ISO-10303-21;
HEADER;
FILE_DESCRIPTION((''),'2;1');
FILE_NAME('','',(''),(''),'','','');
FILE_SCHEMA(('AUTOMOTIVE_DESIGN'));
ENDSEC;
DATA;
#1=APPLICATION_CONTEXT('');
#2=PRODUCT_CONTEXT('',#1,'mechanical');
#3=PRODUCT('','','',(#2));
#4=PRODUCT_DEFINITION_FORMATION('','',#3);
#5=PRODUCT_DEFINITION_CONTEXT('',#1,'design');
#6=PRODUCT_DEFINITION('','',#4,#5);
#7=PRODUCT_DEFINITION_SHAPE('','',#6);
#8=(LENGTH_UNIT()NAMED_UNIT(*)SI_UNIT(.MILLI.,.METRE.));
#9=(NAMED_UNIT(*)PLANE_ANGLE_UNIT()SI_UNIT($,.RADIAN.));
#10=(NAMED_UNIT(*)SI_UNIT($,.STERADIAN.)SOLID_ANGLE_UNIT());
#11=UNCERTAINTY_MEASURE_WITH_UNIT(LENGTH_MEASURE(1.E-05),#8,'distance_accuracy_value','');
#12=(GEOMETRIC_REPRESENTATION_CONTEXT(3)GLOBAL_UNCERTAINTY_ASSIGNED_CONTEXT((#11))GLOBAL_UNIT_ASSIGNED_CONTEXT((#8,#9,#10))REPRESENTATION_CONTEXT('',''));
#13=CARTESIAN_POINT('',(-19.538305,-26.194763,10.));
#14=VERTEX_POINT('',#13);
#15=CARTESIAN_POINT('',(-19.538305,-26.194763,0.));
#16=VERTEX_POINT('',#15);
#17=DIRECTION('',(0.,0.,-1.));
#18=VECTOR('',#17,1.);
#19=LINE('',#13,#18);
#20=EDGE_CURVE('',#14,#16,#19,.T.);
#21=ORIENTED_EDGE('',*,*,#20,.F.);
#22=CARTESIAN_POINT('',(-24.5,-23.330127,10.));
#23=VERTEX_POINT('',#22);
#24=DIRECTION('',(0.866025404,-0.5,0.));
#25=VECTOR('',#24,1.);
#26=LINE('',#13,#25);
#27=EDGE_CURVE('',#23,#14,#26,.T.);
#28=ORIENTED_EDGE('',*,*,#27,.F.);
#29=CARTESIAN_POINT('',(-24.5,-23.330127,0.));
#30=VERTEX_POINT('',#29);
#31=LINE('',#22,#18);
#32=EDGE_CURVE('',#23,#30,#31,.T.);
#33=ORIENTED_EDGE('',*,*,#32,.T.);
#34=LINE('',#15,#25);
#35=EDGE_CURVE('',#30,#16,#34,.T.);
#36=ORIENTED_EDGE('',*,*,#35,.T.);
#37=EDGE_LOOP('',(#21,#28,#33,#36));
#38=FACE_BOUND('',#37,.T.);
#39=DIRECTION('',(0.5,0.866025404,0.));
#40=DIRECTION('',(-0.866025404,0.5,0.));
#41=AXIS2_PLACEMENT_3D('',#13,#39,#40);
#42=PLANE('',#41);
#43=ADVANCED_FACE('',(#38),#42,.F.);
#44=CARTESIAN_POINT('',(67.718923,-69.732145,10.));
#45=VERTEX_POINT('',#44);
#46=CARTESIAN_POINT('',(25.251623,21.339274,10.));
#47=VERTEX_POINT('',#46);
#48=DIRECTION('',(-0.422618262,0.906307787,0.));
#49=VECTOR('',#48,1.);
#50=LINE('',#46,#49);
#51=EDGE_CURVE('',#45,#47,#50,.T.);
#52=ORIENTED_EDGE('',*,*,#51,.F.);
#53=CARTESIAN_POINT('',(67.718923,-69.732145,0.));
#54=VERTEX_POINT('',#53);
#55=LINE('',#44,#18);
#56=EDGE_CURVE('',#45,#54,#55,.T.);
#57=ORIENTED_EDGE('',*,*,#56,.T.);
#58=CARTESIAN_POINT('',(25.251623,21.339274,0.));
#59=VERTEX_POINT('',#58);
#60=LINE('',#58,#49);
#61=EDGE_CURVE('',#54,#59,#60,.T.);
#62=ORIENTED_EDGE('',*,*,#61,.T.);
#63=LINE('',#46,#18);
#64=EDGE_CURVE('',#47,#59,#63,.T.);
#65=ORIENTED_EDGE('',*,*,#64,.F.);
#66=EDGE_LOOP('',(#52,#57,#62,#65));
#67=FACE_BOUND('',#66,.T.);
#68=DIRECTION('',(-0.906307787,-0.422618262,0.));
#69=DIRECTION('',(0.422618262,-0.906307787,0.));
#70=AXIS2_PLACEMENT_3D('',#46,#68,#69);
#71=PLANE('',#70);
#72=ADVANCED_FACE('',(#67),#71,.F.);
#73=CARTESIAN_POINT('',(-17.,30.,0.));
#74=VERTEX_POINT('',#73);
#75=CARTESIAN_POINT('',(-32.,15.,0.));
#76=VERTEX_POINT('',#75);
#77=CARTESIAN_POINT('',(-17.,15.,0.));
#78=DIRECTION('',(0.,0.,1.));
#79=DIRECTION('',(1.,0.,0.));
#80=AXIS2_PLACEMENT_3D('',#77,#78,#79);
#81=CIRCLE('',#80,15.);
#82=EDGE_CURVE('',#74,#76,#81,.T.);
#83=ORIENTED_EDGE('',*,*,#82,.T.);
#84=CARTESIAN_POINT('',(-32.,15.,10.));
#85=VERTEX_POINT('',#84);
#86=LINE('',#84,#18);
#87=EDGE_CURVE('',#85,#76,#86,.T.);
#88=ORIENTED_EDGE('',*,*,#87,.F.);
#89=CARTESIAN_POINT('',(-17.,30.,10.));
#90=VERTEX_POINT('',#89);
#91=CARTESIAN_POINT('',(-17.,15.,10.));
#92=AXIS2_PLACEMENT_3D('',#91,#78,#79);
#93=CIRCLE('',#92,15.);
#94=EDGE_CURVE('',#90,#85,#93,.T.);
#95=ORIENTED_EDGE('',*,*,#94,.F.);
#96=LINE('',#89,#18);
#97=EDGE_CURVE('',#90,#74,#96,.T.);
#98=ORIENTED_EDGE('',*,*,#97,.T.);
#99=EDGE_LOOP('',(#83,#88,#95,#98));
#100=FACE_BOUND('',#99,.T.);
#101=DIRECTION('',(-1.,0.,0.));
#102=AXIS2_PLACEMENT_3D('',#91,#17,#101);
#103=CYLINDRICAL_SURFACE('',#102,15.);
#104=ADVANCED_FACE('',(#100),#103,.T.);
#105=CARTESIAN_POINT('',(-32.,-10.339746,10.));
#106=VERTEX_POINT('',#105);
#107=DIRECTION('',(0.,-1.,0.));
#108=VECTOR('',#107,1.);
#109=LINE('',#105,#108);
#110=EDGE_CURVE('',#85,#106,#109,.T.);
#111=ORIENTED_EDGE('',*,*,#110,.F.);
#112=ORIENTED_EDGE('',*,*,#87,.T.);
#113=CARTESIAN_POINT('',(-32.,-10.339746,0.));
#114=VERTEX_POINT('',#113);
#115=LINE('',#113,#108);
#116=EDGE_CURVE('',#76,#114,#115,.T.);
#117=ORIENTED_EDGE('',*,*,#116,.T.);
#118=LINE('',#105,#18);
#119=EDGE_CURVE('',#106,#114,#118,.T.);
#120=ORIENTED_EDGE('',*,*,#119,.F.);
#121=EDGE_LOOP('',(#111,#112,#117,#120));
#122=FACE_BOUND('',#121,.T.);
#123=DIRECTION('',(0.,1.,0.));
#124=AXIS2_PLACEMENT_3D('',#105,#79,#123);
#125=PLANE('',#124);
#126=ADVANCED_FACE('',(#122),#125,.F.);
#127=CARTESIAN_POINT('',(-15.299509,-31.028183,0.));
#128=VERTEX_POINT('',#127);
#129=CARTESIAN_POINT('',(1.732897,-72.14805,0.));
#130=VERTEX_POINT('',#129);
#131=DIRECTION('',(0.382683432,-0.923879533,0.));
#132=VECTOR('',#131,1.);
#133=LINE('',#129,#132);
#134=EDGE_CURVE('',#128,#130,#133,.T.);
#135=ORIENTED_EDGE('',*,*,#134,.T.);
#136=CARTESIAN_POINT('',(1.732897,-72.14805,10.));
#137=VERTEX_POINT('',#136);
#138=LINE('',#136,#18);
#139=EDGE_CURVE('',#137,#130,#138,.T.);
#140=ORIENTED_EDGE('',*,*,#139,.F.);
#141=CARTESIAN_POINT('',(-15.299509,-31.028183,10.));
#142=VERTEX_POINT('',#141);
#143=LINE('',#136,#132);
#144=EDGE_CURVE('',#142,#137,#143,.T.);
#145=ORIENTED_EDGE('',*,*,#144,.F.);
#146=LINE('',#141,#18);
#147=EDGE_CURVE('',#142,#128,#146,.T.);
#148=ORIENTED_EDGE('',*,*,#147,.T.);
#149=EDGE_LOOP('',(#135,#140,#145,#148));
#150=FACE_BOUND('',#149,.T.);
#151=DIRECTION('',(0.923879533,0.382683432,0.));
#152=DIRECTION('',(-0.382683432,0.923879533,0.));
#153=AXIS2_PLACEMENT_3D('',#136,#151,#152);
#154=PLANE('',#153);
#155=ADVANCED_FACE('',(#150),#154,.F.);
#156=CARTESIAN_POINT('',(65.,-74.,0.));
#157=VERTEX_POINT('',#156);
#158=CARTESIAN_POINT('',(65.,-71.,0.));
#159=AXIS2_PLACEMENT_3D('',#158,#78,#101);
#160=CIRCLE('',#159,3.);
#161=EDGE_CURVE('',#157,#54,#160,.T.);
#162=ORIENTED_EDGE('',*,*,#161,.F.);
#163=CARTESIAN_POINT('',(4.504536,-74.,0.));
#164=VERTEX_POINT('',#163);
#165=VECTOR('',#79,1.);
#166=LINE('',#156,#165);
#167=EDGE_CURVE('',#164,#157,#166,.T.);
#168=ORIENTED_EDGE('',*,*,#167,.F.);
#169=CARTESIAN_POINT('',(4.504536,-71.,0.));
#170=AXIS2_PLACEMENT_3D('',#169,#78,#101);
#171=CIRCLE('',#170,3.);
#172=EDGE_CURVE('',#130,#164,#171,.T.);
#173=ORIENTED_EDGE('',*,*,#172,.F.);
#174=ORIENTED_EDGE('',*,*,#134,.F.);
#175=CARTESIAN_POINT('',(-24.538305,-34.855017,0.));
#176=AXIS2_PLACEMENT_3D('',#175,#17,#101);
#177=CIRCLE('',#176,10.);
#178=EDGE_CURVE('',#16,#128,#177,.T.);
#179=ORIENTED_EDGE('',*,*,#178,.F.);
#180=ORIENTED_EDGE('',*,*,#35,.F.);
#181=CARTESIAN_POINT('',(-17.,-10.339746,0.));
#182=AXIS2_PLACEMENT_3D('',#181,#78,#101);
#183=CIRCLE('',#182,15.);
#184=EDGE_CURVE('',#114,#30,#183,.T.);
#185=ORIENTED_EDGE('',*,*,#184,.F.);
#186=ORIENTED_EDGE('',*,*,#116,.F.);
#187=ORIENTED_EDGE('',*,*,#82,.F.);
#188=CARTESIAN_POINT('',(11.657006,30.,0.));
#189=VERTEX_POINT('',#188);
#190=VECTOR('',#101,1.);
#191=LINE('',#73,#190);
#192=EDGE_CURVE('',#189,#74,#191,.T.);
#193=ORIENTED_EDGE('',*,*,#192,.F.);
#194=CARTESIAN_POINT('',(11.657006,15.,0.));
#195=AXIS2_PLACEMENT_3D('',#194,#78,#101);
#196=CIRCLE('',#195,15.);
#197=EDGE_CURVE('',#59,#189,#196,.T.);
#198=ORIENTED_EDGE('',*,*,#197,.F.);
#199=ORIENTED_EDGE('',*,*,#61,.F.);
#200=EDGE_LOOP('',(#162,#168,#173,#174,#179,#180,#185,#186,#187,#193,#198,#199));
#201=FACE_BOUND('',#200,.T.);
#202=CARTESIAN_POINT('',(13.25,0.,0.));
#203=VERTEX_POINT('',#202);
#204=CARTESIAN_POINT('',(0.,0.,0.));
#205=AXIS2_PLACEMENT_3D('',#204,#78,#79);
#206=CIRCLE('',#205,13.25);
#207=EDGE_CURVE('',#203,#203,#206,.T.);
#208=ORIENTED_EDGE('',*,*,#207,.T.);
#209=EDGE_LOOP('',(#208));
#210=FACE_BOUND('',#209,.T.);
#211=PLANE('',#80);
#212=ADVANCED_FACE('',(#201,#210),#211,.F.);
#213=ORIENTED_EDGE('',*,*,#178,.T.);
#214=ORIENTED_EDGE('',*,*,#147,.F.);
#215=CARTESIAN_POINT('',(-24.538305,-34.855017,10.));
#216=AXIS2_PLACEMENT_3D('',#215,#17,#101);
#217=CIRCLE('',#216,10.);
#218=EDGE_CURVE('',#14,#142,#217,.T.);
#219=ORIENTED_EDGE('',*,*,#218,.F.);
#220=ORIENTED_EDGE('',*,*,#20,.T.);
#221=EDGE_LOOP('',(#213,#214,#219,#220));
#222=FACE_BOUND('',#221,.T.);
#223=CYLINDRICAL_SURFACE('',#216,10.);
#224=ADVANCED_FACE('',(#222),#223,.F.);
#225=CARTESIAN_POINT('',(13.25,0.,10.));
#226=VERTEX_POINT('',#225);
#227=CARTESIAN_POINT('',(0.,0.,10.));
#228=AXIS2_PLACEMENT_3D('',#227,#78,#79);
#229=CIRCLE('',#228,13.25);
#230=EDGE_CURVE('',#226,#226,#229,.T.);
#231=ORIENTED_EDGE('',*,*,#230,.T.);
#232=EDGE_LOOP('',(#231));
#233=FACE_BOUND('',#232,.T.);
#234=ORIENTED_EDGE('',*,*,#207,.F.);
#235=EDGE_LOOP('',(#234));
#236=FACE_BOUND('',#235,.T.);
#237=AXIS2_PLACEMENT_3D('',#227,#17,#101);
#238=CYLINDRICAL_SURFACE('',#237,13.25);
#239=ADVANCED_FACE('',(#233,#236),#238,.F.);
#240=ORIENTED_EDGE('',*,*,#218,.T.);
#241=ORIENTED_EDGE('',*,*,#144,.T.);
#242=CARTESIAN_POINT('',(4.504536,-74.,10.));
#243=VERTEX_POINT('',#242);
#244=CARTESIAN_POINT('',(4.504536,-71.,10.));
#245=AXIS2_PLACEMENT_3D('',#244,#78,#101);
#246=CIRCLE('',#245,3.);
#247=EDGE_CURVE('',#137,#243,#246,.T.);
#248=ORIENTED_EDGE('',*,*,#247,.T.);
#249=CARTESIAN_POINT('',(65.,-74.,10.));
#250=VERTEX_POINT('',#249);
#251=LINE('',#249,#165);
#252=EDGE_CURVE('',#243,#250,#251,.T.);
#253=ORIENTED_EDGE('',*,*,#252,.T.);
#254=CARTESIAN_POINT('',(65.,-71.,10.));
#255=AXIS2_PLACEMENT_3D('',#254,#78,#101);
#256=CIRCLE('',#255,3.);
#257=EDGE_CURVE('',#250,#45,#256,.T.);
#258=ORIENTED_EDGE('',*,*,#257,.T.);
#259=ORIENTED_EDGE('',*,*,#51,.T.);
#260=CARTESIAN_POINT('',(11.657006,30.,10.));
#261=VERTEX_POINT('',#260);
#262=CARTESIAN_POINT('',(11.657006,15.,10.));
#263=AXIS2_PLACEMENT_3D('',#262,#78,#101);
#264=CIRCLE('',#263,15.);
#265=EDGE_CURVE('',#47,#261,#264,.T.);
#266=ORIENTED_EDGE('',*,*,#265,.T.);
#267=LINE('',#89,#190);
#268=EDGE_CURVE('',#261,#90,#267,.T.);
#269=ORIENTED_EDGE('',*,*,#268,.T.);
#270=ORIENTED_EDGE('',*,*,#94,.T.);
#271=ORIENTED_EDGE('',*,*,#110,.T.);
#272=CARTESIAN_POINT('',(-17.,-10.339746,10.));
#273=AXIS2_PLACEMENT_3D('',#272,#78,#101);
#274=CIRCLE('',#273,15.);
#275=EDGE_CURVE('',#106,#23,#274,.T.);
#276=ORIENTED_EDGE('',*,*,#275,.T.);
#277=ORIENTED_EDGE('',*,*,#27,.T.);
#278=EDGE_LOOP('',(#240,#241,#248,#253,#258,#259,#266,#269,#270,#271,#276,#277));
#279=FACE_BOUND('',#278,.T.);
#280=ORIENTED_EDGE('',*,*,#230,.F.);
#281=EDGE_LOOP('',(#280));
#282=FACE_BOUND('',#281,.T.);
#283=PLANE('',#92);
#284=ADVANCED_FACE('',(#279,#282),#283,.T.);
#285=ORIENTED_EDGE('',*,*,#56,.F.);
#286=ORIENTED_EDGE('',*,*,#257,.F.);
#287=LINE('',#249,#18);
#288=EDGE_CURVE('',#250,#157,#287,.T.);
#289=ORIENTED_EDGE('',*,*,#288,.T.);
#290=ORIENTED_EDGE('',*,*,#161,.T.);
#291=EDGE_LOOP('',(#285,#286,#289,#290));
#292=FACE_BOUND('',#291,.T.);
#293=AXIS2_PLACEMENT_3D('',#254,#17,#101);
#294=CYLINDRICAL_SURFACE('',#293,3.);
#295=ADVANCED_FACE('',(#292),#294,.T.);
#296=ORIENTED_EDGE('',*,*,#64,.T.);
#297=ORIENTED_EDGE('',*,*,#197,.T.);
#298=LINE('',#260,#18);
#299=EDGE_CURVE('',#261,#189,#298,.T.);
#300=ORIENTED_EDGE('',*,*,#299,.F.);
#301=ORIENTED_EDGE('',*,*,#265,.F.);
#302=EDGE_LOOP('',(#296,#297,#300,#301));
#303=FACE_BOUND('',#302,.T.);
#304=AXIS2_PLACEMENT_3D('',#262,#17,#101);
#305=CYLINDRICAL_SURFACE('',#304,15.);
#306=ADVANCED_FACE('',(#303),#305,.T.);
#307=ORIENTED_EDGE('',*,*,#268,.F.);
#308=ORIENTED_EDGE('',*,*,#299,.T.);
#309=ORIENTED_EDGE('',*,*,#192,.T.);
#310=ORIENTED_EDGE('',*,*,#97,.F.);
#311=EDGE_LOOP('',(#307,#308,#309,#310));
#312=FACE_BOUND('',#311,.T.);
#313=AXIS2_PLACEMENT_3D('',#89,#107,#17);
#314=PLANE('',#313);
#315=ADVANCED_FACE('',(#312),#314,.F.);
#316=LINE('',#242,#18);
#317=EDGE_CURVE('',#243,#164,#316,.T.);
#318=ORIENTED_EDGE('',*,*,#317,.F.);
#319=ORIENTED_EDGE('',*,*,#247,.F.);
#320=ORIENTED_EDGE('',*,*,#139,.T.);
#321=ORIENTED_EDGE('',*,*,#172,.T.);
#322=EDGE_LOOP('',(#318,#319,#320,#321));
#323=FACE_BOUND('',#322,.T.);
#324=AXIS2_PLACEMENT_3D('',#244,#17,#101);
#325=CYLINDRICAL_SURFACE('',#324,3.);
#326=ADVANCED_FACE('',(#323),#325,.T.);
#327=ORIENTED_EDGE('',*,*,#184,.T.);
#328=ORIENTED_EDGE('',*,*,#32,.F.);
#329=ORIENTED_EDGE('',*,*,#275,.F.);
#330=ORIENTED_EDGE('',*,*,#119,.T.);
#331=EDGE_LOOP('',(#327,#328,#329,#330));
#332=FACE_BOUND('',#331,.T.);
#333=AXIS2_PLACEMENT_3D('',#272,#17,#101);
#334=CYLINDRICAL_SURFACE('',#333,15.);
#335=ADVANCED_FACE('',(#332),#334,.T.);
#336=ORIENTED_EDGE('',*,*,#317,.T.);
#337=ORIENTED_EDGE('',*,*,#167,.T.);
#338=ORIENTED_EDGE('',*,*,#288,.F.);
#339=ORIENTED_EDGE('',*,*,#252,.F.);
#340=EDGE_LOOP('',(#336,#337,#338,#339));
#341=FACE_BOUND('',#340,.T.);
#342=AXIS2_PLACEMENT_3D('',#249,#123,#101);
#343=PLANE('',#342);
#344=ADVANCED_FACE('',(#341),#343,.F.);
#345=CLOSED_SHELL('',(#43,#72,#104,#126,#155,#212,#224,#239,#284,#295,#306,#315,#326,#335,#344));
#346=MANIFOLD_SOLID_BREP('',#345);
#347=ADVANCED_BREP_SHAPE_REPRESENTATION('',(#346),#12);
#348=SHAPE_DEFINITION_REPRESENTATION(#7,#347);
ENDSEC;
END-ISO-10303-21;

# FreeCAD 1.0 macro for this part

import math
import FreeCAD as App
import Part
import Sketcher
Q = App.Units.Quantity

doc = App.newDocument("Part")
body = doc.addObject("PartDesign::Body", "Body")

sketch1 = doc.addObject("Sketcher::SketchObject", "Sketch")
body.addObject(sketch1)
sketch1.AttachmentSupport = (doc.XY_Plane, [""])
sketch1.MapMode = "FlatFace"
sketch1.addGeometry([
    Part.LineSegment(App.Vector(11.7, 30, 0), App.Vector(-17, 30, 0)),
    Part.ArcOfCircle(Part.Circle(App.Vector(-17, 15, 0), App.Vector(0, 0, 1), 15), math.radians(90), math.radians(180)),
    Part.LineSegment(App.Vector(-32, 15, 0), App.Vector(-32, -10.3, 0)),
    Part.ArcOfCircle(Part.Circle(App.Vector(-17, -10.3, 0), App.Vector(0, 0, 1), 15), math.radians(180), math.radians(240)),
    Part.LineSegment(App.Vector(-24.5, -23.3, 0), App.Vector(-19.5, -26.2, 0)),
    Part.ArcOfCircle(Part.Circle(App.Vector(-24.5, -34.9, 0), App.Vector(0, 0, 1), 10), math.radians(23), math.radians(60)),
    Part.LineSegment(App.Vector(-15.3, -31, 0), App.Vector(1.7, -72.1, 0)),
    Part.ArcOfCircle(Part.Circle(App.Vector(4.5, -71, 0), App.Vector(0, 0, 1), 3), math.radians(-157), math.radians(-90)),
    Part.LineSegment(App.Vector(4.5, -74, 0), App.Vector(65, -74, 0)),
    Part.ArcOfCircle(Part.Circle(App.Vector(65, -71, 0), App.Vector(0, 0, 1), 3), math.radians(-90), math.radians(25)),
    Part.LineSegment(App.Vector(67.7, -69.7, 0), App.Vector(25.3, 21.3, 0)),
    Part.ArcOfCircle(Part.Circle(App.Vector(11.7, 15, 0), App.Vector(0, 0, 1), 15), math.radians(25), math.radians(90)),
    Part.Circle(App.Vector(0, 0, 0), App.Vector(0, 0, 1), 13.2),
], False)
sketch1.addConstraint([
    Sketcher.Constraint("Tangent", 0, 2, 1, 1),
    Sketcher.Constraint("Tangent", 1, 2, 2, 1),
    Sketcher.Constraint("Tangent", 2, 2, 3, 1),
    Sketcher.Constraint("Tangent", 3, 2, 4, 1),
    Sketcher.Constraint("Tangent", 4, 2, 5, 2),
    Sketcher.Constraint("Tangent", 5, 1, 6, 1),
    Sketcher.Constraint("Tangent", 6, 2, 7, 1),
    Sketcher.Constraint("Tangent", 7, 2, 8, 1),
    Sketcher.Constraint("Tangent", 8, 2, 9, 1),
    Sketcher.Constraint("Tangent", 9, 2, 10, 1),
    Sketcher.Constraint("Tangent", 10, 2, 11, 1),
    Sketcher.Constraint("Tangent", 11, 2, 0, 1),
    Sketcher.Constraint("Horizontal", 0),
    Sketcher.Constraint("Vertical", 2),
    Sketcher.Constraint("Horizontal", 8),
    Sketcher.Constraint("Coincident", 12, 3, -1, 1),
    Sketcher.Constraint("Equal", 1, 3),
    Sketcher.Constraint("Equal", 7, 9),
    Sketcher.Constraint("Equal", 3, 11),
    Sketcher.Constraint("Radius", 1, 15.0),
    Sketcher.Constraint("Radius", 5, 10.0),
    Sketcher.Constraint("Radius", 7, 3.0),
    Sketcher.Constraint("Diameter", 12, 26.5),
    Sketcher.Constraint("Angle", 4, Q("-30 deg")),
    Sketcher.Constraint("Angle", 10, Q("115 deg")),
    Sketcher.Constraint("DistanceX", 1, 3, -1, 1, 17.0),
    Sketcher.Constraint("DistanceY", -1, 1, 1, 3, 15.0),
    Sketcher.Constraint("DistanceY", 7, 3, -1, 1, 71.0),
    Sketcher.Constraint("DistanceX", -1, 1, 9, 3, 65.0),
    Sketcher.Constraint("Angle", 6, Q("-67.5 deg")),
    Sketcher.Constraint("DistanceX", 8, 1, 8, 2, 60.495464),
    Sketcher.Constraint("DistanceY", 2, 2, 2, 1, 25.339746),
])
pad1 = doc.addObject("PartDesign::Pad", "Pad")
body.addObject(pad1)
pad1.Profile = sketch1
pad1.Length = 10

doc.recompute()
